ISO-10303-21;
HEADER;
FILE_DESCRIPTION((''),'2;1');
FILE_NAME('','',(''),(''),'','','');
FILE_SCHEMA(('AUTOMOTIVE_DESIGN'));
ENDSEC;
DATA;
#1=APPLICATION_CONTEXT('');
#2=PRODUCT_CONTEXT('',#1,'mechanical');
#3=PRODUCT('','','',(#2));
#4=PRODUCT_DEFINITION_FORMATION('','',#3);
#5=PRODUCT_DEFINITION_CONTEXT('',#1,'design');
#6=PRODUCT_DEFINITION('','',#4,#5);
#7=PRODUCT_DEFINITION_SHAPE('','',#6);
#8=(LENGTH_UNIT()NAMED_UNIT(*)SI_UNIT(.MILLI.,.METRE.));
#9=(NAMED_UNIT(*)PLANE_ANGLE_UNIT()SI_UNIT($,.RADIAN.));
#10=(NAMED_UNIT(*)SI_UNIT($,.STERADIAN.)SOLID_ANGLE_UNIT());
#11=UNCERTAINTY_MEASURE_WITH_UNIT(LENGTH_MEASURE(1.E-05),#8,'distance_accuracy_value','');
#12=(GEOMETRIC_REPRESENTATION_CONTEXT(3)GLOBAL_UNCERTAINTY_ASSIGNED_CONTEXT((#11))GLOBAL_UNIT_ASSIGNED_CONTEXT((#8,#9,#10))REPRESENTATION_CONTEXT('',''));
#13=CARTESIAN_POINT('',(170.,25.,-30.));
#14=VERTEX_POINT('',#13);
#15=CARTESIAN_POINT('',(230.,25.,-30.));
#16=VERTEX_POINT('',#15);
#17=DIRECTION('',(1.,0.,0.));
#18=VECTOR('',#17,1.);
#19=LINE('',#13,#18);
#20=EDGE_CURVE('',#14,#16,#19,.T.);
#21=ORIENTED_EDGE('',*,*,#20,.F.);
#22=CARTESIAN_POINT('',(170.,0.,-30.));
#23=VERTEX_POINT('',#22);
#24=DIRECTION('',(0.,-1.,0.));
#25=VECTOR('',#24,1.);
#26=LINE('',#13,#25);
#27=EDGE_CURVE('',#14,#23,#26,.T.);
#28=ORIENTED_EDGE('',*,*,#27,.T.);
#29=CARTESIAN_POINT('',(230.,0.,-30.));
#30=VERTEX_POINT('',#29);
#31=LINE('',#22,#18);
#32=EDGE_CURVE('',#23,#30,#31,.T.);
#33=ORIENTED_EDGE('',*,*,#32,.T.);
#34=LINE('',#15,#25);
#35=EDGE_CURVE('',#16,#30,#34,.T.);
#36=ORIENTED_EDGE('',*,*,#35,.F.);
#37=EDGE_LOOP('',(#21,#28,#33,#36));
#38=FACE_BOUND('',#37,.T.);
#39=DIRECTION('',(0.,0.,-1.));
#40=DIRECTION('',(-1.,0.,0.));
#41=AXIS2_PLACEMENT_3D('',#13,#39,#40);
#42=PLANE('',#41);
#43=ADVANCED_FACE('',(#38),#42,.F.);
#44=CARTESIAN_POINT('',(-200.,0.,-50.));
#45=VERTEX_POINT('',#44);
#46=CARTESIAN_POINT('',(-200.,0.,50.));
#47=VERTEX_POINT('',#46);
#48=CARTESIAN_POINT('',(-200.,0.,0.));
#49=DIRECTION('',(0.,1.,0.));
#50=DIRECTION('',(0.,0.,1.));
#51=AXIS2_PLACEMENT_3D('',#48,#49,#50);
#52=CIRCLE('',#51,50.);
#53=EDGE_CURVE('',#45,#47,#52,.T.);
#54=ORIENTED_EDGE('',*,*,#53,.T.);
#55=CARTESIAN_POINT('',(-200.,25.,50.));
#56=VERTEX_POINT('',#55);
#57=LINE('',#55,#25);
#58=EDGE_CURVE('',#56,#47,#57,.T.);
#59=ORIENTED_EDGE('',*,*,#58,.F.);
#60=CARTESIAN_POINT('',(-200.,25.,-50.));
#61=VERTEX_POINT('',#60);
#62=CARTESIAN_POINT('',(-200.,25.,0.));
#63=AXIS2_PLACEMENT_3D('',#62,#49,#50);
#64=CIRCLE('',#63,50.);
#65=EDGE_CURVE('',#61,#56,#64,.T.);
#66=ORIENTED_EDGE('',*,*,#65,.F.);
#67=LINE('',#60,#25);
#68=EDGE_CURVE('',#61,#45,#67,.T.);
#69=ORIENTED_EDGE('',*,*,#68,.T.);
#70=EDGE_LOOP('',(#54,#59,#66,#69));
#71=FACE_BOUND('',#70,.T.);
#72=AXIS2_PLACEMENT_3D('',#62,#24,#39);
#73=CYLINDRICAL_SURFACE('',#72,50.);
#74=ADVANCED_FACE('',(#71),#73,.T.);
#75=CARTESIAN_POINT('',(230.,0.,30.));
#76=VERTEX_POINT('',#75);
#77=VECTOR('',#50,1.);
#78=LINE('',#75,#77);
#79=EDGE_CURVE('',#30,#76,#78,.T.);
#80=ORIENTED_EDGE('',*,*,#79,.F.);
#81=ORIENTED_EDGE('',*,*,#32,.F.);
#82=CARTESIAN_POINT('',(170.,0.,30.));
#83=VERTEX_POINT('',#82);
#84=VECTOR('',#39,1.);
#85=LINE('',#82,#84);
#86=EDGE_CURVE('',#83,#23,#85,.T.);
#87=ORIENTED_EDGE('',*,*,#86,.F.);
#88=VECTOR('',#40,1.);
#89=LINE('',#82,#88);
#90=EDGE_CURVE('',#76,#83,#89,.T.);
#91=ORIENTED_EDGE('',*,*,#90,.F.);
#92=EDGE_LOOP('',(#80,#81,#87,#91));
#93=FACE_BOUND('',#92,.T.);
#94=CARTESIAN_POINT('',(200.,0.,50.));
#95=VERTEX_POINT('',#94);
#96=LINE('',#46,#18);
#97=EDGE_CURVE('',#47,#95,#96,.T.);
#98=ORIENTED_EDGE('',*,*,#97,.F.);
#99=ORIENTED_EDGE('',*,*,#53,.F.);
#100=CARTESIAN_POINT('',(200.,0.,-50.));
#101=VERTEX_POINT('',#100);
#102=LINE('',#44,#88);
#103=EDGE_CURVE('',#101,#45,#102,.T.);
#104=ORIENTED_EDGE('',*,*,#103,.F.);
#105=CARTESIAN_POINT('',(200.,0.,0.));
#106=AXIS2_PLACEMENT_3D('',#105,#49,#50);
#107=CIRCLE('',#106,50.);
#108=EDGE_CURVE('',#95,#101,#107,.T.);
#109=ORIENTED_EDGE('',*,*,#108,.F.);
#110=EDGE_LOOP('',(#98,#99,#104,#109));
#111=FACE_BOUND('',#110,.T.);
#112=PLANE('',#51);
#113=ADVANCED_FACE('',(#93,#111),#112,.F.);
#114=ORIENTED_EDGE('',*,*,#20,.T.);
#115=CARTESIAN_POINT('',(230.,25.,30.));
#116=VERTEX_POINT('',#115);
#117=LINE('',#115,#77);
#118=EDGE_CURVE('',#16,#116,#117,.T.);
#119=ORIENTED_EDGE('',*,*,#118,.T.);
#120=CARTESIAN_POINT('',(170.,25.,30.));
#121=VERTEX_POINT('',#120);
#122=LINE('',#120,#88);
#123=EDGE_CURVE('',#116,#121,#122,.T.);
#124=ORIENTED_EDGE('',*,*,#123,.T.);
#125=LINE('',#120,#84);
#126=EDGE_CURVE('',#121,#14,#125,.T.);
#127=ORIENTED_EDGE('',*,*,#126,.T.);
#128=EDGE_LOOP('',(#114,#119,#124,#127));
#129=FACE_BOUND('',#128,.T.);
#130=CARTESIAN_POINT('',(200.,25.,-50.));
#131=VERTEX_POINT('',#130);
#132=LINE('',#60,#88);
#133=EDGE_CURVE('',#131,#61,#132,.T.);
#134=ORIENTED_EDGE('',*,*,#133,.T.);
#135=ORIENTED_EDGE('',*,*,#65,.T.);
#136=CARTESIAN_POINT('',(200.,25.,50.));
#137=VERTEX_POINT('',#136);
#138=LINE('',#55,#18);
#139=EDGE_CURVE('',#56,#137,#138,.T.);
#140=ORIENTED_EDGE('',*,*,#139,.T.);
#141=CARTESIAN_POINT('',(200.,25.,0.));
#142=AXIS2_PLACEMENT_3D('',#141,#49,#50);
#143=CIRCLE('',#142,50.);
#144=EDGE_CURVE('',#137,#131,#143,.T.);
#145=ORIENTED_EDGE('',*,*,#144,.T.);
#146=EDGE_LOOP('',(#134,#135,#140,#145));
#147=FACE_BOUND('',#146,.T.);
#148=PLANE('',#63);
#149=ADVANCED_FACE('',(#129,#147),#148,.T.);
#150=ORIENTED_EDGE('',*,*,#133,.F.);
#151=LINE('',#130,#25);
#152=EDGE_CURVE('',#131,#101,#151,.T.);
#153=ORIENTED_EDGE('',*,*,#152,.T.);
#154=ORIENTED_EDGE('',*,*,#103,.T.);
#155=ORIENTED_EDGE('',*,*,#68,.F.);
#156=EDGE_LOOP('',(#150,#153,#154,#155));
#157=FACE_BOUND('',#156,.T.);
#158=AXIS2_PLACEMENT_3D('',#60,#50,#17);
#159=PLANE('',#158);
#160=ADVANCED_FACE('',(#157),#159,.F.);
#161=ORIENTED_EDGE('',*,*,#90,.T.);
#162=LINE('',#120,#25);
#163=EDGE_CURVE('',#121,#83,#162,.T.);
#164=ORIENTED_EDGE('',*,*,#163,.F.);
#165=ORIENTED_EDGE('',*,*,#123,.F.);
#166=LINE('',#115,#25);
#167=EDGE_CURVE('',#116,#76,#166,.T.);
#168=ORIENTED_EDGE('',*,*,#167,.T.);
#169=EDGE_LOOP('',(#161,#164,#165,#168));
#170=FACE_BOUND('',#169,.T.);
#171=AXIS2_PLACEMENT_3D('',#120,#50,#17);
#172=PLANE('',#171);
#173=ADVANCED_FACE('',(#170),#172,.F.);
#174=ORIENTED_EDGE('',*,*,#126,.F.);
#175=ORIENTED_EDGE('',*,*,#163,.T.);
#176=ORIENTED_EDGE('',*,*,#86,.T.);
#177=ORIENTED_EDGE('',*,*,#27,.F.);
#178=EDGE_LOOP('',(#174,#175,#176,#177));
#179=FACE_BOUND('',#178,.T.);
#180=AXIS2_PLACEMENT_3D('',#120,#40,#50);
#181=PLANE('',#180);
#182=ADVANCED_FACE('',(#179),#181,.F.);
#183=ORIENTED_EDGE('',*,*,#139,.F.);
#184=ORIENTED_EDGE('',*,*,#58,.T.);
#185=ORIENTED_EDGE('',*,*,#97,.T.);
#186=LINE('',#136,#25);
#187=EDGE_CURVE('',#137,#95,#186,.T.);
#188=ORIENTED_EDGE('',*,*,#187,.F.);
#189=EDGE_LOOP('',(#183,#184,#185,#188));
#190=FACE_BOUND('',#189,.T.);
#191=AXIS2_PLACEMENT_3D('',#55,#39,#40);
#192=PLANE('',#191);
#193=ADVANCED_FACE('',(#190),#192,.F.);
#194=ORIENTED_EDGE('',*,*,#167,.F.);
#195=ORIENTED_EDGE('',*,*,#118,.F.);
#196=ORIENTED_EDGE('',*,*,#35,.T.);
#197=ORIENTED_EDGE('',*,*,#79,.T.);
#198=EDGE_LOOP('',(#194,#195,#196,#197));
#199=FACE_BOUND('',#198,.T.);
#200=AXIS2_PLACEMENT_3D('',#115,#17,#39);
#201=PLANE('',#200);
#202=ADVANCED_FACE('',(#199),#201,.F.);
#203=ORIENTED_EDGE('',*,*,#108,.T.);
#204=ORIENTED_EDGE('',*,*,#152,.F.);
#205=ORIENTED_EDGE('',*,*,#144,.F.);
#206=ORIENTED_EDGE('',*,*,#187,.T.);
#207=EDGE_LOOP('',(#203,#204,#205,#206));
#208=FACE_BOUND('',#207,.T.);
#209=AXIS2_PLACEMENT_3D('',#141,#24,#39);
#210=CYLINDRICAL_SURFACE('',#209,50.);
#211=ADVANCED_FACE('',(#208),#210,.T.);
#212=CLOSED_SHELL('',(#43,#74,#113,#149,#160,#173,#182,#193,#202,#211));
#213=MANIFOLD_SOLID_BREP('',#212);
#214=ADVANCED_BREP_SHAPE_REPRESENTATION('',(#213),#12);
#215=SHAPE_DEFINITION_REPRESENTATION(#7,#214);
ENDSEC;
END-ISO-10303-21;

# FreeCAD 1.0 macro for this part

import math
import FreeCAD as App
import Part
import Sketcher
from FreeCAD import Vector
Q = App.Units.Quantity

doc = App.newDocument("Part")
body = doc.addObject("PartDesign::Body", "Body")

# Sketch on XZ plane
sketch1 = body.newObject("Sketcher::SketchObject", "Sketch")
sketch1.AttachmentSupport = (doc.getObject("XZ_Plane"), [""])
sketch1.MapMode = "FlatFace"
sketch1.addGeometry([
    Part.LineSegment(Vector(200, -50, 0), Vector(-200, -50, 0)),
    Part.ArcOfCircle(Part.Circle(Vector(-200, 0, 0), Vector(0, 0, 1), 50), math.radians(90), math.radians(270)),
    Part.LineSegment(Vector(-200, 50, 0), Vector(200, 50, 0)),
    Part.ArcOfCircle(Part.Circle(Vector(200, 0, 0), Vector(0, 0, 1), 50), math.radians(-90), math.radians(90)),
], False)
sketch1.addConstraint([
    Sketcher.Constraint("Tangent", 0, 2, 1, 2),
    Sketcher.Constraint("Tangent", 1, 1, 2, 1),
    Sketcher.Constraint("Tangent", 2, 2, 3, 2),
    Sketcher.Constraint("Tangent", 3, 1, 0, 1),
    Sketcher.Constraint("Horizontal", 0),
    Sketcher.Constraint("Horizontal", 2),
    Sketcher.Constraint("Symmetric", 1, 3, 3, 3, -1, 1),
    Sketcher.Constraint("Radius", 1, Q("50 mm")),
    Sketcher.Constraint("DistanceX", 0, 2, 0, 1, Q("400 mm")),
])
pad1 = body.newObject("PartDesign::Pad", "Pad")
pad1.Profile = sketch1
pad1.Length = 25
pad1.Reversed = True

# Sketch on XZ plane
sketch2 = body.newObject("Sketcher::SketchObject", "Sketch001")
sketch2.AttachmentSupport = (doc.getObject("XZ_Plane"), [""])
sketch2.MapMode = "FlatFace"
sketch2.addGeometry([
    Part.LineSegment(Vector(170, 30, 0), Vector(170, -30, 0)),
    Part.LineSegment(Vector(170, -30, 0), Vector(230, -30, 0)),
    Part.LineSegment(Vector(230, -30, 0), Vector(230, 30, 0)),
    Part.LineSegment(Vector(230, 30, 0), Vector(170, 30, 0)),
], False)
sketch2.addConstraint([
    Sketcher.Constraint("Coincident", 0, 2, 1, 1),
    Sketcher.Constraint("Coincident", 1, 2, 2, 1),
    Sketcher.Constraint("Coincident", 2, 2, 3, 1),
    Sketcher.Constraint("Coincident", 3, 2, 0, 1),
    Sketcher.Constraint("Vertical", 0),
    Sketcher.Constraint("Horizontal", 1),
    Sketcher.Constraint("Vertical", 2),
    Sketcher.Constraint("Horizontal", 3),
    Sketcher.Constraint("Equal", 3, 0),
    Sketcher.Constraint("DistanceX", 1, 1, 1, 2, Q("60 mm")),
    Sketcher.Constraint("DistanceX", -1, 1, 0, 2, Q("170 mm")),
    Sketcher.Constraint("DistanceY", 0, 2, -1, 1, Q("30 mm")),
])
pocket1 = body.newObject("PartDesign::Pocket", "Pocket")
pocket1.Profile = sketch2
pocket1.Length = 25

doc.recompute()
